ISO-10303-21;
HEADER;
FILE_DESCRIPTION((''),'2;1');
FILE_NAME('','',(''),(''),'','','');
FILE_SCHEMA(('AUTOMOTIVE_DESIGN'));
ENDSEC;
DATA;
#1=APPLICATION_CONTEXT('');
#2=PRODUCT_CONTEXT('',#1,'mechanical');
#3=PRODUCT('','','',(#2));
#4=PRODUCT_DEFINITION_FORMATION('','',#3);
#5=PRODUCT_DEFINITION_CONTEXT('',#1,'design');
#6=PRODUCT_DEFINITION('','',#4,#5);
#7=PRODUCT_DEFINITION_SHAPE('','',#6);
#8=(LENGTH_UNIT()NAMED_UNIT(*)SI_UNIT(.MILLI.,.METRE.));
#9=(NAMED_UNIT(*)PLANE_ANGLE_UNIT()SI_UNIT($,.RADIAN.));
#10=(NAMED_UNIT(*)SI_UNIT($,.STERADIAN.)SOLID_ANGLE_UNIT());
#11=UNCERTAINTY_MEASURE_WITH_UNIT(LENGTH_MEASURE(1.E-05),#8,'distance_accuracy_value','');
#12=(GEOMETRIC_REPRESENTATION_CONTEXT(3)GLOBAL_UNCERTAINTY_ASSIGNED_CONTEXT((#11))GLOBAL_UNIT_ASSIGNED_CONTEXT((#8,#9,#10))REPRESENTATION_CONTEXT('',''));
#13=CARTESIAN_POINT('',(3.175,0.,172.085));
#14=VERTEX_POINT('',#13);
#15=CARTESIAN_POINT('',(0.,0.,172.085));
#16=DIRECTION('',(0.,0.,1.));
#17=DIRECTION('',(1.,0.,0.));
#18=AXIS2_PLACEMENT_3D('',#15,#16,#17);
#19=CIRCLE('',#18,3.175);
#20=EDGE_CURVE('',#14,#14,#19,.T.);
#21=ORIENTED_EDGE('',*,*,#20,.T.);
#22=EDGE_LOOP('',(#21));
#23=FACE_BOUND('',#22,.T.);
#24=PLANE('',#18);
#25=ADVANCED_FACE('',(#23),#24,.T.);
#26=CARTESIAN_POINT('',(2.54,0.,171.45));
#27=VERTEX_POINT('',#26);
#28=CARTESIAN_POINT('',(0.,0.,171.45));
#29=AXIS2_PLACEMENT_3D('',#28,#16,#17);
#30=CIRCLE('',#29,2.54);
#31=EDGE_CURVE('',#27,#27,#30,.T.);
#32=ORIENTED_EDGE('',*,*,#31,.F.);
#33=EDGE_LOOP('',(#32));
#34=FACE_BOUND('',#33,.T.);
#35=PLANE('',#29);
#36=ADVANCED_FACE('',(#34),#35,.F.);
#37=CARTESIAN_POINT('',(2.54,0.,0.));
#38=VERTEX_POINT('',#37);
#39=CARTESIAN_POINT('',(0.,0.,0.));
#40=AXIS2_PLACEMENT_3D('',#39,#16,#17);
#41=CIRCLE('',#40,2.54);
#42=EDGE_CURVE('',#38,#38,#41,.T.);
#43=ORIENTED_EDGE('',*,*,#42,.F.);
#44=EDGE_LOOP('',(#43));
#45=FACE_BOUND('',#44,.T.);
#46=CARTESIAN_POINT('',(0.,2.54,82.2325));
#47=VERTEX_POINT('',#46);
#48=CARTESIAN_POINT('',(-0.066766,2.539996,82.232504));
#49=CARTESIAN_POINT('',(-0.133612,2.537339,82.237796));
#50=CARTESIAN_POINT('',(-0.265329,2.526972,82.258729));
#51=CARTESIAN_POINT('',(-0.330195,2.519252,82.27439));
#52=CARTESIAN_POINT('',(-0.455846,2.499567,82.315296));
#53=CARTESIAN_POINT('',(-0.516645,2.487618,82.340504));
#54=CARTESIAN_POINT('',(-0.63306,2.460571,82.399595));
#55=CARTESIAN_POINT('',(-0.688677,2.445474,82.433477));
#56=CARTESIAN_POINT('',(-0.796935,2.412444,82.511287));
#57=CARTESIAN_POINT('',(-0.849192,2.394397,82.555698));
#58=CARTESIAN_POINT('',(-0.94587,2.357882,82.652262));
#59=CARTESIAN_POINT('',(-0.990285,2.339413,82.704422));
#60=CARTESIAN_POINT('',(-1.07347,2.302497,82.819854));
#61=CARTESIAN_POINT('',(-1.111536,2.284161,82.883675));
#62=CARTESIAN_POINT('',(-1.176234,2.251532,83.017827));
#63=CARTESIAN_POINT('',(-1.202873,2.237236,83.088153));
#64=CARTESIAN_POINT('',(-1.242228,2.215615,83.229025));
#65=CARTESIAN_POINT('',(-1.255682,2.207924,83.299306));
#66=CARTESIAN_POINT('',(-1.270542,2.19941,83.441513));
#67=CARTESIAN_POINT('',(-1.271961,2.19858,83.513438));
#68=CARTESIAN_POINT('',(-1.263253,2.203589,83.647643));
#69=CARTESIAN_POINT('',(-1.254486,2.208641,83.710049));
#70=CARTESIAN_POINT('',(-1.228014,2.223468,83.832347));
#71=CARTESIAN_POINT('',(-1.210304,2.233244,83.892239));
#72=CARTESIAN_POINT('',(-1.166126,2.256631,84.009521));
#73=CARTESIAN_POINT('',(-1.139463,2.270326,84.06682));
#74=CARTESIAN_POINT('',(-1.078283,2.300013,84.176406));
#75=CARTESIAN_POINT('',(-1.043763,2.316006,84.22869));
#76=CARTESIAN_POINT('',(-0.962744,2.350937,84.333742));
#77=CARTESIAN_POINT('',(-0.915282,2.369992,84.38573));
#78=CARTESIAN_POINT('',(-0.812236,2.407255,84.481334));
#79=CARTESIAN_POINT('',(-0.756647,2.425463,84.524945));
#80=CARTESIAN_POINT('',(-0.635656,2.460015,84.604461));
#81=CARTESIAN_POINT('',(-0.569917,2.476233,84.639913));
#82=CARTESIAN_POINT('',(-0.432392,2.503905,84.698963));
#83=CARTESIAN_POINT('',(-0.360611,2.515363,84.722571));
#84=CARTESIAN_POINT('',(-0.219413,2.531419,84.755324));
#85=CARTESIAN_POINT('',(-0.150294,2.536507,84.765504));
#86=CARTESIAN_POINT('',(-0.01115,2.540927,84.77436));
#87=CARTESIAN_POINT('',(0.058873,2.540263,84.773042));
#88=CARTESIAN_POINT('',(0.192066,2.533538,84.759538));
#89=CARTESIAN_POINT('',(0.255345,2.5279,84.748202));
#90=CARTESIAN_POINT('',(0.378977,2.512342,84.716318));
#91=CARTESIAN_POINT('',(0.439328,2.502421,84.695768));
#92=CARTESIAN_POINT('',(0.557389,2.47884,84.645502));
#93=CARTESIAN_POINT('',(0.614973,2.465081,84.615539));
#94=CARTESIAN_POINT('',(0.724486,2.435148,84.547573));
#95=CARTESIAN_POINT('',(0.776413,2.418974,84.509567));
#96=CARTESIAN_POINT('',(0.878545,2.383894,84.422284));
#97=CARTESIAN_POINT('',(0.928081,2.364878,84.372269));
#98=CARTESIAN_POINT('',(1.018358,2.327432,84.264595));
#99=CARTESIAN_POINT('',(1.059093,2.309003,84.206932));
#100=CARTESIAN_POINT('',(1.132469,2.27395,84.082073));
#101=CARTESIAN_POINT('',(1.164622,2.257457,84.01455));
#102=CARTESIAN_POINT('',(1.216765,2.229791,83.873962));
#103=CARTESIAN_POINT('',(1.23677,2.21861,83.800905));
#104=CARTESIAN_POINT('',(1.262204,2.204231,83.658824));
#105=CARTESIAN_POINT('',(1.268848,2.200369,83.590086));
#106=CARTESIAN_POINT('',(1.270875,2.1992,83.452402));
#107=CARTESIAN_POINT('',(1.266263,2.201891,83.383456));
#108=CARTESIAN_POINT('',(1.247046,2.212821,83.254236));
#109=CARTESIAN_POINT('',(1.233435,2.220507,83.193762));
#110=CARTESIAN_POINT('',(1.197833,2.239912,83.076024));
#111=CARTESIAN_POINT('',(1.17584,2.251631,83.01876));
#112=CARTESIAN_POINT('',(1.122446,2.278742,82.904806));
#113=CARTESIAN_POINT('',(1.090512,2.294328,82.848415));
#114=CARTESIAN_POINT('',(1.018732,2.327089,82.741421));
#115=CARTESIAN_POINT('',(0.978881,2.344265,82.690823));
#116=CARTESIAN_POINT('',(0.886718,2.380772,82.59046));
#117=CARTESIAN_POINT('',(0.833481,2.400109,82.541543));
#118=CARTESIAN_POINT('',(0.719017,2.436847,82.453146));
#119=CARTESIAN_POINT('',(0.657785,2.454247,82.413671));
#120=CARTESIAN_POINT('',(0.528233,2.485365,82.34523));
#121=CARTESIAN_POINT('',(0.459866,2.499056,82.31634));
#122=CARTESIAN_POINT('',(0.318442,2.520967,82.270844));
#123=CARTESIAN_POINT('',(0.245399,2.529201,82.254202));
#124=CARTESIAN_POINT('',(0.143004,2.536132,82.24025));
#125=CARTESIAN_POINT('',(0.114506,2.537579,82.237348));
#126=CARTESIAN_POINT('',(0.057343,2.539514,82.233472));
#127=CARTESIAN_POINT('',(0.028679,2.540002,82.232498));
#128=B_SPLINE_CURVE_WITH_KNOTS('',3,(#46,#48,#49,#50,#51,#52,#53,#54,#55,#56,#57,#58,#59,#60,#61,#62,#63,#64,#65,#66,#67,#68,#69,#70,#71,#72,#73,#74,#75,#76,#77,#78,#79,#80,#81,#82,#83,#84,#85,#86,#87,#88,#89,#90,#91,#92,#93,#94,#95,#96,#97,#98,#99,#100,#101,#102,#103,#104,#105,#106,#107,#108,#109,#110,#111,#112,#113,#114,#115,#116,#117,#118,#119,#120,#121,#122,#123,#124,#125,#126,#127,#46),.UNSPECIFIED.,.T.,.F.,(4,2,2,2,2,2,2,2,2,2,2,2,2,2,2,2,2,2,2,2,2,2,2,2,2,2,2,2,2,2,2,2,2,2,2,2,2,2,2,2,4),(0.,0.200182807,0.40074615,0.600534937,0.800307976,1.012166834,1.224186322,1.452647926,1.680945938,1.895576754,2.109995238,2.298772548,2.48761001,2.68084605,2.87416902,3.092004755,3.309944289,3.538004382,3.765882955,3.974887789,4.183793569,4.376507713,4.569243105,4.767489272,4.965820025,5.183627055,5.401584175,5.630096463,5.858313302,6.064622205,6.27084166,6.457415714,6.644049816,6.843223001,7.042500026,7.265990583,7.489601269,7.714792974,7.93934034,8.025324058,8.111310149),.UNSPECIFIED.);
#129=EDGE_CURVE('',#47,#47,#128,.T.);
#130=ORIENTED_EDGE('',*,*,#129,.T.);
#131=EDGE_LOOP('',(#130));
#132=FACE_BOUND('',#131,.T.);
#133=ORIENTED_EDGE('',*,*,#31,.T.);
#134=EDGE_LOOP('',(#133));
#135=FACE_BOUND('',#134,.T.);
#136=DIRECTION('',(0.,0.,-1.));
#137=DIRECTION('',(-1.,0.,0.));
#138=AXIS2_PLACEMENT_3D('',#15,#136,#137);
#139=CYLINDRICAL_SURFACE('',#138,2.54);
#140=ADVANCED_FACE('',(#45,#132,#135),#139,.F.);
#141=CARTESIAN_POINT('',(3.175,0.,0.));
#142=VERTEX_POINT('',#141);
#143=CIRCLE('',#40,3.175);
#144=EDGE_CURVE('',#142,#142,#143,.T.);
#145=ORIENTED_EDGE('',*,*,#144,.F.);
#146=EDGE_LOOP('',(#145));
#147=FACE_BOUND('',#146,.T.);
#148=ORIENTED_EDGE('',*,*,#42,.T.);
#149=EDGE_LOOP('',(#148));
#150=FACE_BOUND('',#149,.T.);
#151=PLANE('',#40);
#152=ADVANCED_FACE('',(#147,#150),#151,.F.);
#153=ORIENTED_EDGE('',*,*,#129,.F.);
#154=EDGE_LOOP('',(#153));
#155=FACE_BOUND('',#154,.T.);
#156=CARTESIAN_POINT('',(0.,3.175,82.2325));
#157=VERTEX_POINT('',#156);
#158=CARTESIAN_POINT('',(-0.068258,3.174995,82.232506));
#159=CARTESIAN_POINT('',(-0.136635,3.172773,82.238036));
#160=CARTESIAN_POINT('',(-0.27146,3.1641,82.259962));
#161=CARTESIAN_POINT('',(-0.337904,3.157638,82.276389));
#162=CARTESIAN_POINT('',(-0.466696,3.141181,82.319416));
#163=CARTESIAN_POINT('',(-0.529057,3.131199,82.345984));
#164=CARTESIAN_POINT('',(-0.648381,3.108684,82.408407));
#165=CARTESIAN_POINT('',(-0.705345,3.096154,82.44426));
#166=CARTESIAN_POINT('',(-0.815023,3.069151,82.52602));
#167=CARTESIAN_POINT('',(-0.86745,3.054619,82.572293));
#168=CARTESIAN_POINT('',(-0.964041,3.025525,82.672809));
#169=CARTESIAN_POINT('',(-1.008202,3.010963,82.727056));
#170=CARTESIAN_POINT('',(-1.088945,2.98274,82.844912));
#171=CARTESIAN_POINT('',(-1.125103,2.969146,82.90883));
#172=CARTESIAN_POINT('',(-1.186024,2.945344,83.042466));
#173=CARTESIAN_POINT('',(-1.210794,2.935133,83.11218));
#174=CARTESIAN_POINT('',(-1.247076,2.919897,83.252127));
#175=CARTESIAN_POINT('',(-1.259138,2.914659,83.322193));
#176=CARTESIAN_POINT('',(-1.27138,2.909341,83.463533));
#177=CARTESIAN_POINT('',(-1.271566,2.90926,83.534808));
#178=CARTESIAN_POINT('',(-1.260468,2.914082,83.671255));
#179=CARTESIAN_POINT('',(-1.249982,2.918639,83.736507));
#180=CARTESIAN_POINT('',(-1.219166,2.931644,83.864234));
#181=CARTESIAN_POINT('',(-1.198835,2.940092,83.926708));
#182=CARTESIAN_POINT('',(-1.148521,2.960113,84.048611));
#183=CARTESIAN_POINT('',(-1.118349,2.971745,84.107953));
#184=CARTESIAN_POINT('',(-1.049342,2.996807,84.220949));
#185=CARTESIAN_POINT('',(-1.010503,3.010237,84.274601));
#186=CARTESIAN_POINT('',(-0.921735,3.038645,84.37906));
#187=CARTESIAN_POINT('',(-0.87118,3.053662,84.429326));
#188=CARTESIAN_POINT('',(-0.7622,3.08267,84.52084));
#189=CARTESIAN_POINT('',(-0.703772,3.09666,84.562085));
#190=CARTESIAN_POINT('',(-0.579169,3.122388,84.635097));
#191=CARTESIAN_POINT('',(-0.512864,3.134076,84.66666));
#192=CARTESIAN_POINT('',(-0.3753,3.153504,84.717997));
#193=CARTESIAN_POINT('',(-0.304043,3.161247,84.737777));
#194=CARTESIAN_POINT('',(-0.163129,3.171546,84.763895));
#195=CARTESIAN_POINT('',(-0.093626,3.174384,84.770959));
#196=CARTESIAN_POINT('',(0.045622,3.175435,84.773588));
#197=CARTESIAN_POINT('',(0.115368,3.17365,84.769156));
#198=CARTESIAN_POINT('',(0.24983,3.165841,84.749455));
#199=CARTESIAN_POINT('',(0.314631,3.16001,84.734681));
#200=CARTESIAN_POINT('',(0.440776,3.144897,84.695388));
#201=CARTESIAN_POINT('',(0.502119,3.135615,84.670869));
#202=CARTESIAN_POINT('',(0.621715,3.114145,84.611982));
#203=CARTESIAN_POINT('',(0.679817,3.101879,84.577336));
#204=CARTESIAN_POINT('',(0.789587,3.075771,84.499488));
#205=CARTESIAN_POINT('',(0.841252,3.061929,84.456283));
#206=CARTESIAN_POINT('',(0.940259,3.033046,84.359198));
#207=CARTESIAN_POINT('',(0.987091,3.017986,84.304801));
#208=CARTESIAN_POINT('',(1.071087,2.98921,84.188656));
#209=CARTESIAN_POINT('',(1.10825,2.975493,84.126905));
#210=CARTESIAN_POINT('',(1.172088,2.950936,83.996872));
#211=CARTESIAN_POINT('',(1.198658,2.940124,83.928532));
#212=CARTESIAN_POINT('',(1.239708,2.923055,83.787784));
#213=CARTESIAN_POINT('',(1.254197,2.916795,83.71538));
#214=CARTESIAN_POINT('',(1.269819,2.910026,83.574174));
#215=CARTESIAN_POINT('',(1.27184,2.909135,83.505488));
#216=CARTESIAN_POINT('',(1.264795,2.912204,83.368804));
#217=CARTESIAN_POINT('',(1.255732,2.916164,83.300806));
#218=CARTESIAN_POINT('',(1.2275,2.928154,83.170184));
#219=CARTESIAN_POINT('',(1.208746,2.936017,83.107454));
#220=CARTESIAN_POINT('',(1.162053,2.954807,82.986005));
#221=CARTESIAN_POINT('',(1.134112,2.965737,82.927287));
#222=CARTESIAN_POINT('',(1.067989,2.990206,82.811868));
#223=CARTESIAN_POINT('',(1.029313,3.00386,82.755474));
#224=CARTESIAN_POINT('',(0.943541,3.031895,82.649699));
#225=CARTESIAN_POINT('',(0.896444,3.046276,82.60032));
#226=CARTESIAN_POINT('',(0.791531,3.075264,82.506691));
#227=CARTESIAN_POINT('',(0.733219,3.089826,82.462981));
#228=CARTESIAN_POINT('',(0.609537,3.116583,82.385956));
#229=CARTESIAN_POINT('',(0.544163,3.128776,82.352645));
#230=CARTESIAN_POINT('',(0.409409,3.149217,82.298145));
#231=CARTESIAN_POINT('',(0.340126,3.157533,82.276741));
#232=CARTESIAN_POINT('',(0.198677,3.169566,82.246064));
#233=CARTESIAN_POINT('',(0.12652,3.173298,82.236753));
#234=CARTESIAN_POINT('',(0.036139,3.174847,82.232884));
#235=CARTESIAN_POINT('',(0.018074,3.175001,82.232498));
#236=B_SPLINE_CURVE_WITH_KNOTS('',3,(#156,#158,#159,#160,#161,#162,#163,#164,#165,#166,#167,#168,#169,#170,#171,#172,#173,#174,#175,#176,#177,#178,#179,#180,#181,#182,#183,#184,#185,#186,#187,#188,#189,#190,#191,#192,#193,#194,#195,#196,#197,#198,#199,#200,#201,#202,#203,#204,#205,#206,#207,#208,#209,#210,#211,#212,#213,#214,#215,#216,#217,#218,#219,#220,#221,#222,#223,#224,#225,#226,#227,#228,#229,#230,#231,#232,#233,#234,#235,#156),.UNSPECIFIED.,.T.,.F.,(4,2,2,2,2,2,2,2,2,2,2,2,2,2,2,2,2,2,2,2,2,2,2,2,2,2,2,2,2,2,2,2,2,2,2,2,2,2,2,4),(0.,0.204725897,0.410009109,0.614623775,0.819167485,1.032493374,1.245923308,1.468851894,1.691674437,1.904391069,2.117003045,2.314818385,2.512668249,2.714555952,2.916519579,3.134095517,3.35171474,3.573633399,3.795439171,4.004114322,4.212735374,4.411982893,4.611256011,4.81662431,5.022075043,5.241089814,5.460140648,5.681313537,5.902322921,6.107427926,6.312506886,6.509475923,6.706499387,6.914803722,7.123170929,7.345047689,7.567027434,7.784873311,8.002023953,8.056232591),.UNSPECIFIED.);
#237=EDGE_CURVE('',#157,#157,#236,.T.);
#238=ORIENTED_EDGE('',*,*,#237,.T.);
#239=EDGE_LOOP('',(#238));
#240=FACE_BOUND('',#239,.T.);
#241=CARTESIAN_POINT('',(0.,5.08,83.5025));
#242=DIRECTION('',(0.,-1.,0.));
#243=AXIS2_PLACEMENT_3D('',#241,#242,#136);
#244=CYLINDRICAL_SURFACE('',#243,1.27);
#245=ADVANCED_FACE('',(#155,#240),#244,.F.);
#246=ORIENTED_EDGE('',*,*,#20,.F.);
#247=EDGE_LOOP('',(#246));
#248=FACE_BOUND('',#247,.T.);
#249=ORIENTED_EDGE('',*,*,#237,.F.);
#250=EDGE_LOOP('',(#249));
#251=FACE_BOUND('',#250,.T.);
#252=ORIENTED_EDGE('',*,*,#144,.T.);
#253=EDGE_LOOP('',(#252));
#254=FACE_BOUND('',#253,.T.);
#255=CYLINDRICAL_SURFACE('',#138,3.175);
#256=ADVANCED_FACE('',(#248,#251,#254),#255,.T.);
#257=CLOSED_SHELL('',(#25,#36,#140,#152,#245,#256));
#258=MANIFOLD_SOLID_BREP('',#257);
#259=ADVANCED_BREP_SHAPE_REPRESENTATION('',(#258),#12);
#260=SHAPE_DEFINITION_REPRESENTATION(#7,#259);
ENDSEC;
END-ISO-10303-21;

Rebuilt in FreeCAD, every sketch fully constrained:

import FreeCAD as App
import Part
import Sketcher
from FreeCAD import Vector
Q = App.Units.Quantity


def faces_at(feature, points):
    """Names of the faces that lie closest to the given points."""
    faces = feature.Shape.Faces
    near = lambda p: min(range(len(faces)), key=lambda i: faces[i].distToShape(Part.Vertex(*p))[0])
    return sorted({f"Face{near(p) + 1}" for p in points})

doc = App.newDocument("Part")
body = doc.addObject("PartDesign::Body", "Body")

# Sketch on XY plane
sketch1 = body.newObject("Sketcher::SketchObject", "Sketch")
sketch1.AttachmentSupport = (doc.getObject("XY_Plane"), [""])
sketch1.MapMode = "FlatFace"
sketch1.addGeometry(Part.Circle(Vector(0, 0, 0), Vector(0, 0, 1), 3.2), False)
sketch1.addConstraint([
    Sketcher.Constraint("Coincident", 0, 3, -1, 1),
    Sketcher.Constraint("Diameter", 0, Q("0.25 in")),
])
pad1 = body.newObject("PartDesign::Pad", "Pad")
pad1.Profile = sketch1
pad1.Length = Q("6.775 in")
doc.recompute()

thickness = body.newObject("PartDesign::Thickness", "Thickness")
thickness.Base = (pad1, faces_at(pad1, [(0, 0, 0)]))
thickness.Value = Q("0.025 in")
thickness.Reversed = True
thickness.Join = "Intersection"

# Sketch on XZ plane
sketch2 = body.newObject("Sketcher::SketchObject", "Sketch001")
sketch2.AttachmentSupport = (doc.getObject("XZ_Plane"), [""])
sketch2.MapMode = "FlatFace"
sketch2.addGeometry(Part.Circle(Vector(0, 83.5, 0), Vector(0, 0, 1), 1.3), False)
sketch2.addConstraint([
    Sketcher.Constraint("PointOnObject", 0, 3, -2),
    Sketcher.Constraint("Diameter", 0, Q("0.1 in")),
    Sketcher.Constraint("DistanceY", -1, 1, 0, 3, Q("3.2875 in")),
])
pocket1 = body.newObject("PartDesign::Pocket", "Pocket")
pocket1.Profile = sketch2
pocket1.Length = Q("0.2 in")

doc.recompute()
